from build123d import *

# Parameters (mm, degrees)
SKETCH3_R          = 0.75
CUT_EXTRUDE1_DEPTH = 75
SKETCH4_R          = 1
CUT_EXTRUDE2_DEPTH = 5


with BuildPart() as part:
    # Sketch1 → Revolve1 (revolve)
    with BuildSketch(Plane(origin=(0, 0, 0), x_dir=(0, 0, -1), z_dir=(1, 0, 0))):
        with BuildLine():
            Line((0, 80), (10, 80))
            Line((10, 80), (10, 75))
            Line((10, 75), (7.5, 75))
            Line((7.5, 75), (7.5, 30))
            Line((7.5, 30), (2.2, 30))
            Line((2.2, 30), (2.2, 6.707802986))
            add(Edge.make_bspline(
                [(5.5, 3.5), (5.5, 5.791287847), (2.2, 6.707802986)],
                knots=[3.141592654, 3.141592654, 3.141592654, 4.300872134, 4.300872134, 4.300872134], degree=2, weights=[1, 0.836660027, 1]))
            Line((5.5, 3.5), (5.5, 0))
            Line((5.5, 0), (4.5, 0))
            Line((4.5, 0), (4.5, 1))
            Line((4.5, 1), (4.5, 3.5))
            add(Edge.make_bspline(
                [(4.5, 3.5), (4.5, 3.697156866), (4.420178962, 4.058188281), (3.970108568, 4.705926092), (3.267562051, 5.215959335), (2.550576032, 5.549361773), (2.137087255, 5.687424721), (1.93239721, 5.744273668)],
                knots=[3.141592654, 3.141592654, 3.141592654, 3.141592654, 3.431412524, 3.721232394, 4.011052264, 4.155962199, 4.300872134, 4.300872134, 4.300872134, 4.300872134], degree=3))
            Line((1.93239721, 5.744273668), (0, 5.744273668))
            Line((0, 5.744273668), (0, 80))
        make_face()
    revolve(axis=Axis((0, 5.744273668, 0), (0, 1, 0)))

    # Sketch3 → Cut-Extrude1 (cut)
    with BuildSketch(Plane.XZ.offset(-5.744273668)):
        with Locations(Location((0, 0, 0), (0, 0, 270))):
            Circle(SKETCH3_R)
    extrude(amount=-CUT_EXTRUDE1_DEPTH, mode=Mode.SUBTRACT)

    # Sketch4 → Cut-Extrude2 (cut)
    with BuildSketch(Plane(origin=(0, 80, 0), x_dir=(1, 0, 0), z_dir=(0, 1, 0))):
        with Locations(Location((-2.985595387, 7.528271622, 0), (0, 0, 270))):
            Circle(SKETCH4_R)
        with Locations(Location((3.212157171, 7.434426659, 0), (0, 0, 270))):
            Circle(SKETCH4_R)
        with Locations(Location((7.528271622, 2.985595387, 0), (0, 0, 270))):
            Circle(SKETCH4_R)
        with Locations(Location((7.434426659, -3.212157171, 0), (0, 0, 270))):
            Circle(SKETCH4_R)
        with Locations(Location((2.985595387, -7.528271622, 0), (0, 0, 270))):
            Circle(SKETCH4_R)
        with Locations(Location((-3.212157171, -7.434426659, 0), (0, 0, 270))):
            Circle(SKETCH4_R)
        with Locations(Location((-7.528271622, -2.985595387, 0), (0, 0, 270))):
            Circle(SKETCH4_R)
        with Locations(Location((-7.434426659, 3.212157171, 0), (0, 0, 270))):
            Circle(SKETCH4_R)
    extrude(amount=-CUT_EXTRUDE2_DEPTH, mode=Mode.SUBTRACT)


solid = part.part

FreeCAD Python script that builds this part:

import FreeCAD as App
import Part
import Sketcher

V = App.Vector
Q = App.Units.Quantity

doc = App.newDocument("Part")
body = doc.addObject("PartDesign::Body", "Body")

# Sketch on YZ plane
sketch1 = body.newObject("Sketcher::SketchObject", "Sketch")
sketch1.AttachmentSupport = (doc.getObject("YZ_Plane"), [""])
sketch1.MapMode = "FlatFace"
sketch1.addGeometry(Part.LineSegment(V(80, -10, 0), V(80, 0, 0)), False)
sketch1.addGeometry(Part.LineSegment(V(80, 0, 0), V(5.744274, 0, 0)), False)
sketch1.addGeometry(Part.LineSegment(V(5.744274, 0, 0), V(5.744274, -1.932397, 0)), False)
sketch1.addGeometry(Part.BSplineCurve([V(3.5, -4.5, 0), V(3.697157, -4.5, 0), V(4.058188, -4.420179, 0), V(4.705926, -3.970109, 0), V(5.215959, -3.267562, 0), V(5.549362, -2.550576, 0), V(5.687425, -2.137087, 0), V(5.744274, -1.932397, 0)], [4, 1, 1, 1, 1, 4], [3.141592654, 3.431412524, 3.721232394, 4.011052264, 4.155962199, 4.300872134], False, 3, [1, 1, 1, 1, 1, 1, 1, 1], False), False)
sketch1.addGeometry(Part.LineSegment(V(3.5, -4.5, 0), V(0, -4.5, 0)), False)
sketch1.addGeometry(Part.LineSegment(V(0, -4.5, 0), V(0, -5.5, 0)), False)
sketch1.addGeometry(Part.LineSegment(V(0, -5.5, 0), V(3.5, -5.5, 0)), False)
sketch1.addGeometry(Part.BSplineCurve([V(3.5, -5.5, 0), V(5.791288, -5.5, 0), V(6.707803, -2.2, 0)], [3, 3], [3.141592654, 4.300872134], False, 2, [1, 0.836660027, 1], False), False)
sketch1.addGeometry(Part.LineSegment(V(6.707803, -2.2, 0), V(30, -2.2, 0)), False)
sketch1.addGeometry(Part.LineSegment(V(30, -2.2, 0), V(30, -7.5, 0)), False)
sketch1.addGeometry(Part.LineSegment(V(30, -7.5, 0), V(75, -7.5, 0)), False)
sketch1.addGeometry(Part.LineSegment(V(75, -7.5, 0), V(75, -10, 0)), False)
sketch1.addGeometry(Part.LineSegment(V(75, -10, 0), V(80, -10, 0)), False)
sketch1.addConstraint(Sketcher.Constraint("Block", 3))
sketch1.addConstraint(Sketcher.Constraint("Block", 7))
sketch1.addConstraint(Sketcher.Constraint("Coincident", 0, 2, 1, 1))
sketch1.addConstraint(Sketcher.Constraint("Coincident", 1, 2, 2, 1))
sketch1.addConstraint(Sketcher.Constraint("Coincident", 2, 2, 3, 2))
sketch1.addConstraint(Sketcher.Constraint("Coincident", 3, 1, 4, 1))
sketch1.addConstraint(Sketcher.Constraint("Coincident", 4, 2, 5, 1))
sketch1.addConstraint(Sketcher.Constraint("Coincident", 5, 2, 6, 1))
sketch1.addConstraint(Sketcher.Constraint("Coincident", 6, 2, 7, 1))
sketch1.addConstraint(Sketcher.Constraint("Coincident", 7, 2, 8, 1))
sketch1.addConstraint(Sketcher.Constraint("Coincident", 8, 2, 9, 1))
sketch1.addConstraint(Sketcher.Constraint("Coincident", 9, 2, 10, 1))
sketch1.addConstraint(Sketcher.Constraint("Coincident", 10, 2, 11, 1))
sketch1.addConstraint(Sketcher.Constraint("Coincident", 11, 2, 12, 1))
sketch1.addConstraint(Sketcher.Constraint("Coincident", 12, 2, 0, 1))
sketch1.addConstraint(Sketcher.Constraint("Vertical", 0))
sketch1.addConstraint(Sketcher.Constraint("Horizontal", 1))
sketch1.addConstraint(Sketcher.Constraint("Vertical", 2))
sketch1.addConstraint(Sketcher.Constraint("Horizontal", 4))
sketch1.addConstraint(Sketcher.Constraint("Vertical", 5))
sketch1.addConstraint(Sketcher.Constraint("Horizontal", 6))
sketch1.addConstraint(Sketcher.Constraint("Horizontal", 8))
sketch1.addConstraint(Sketcher.Constraint("Vertical", 9))
sketch1.addConstraint(Sketcher.Constraint("Horizontal", 10))
sketch1.addConstraint(Sketcher.Constraint("Vertical", 11))
sketch1.addConstraint(Sketcher.Constraint("Horizontal", 12))
sketch1.addConstraint(Sketcher.Constraint("PointOnObject", 0, 2, -1))
sketch1.addConstraint(Sketcher.Constraint("PointOnObject", 4, 2, -2))
sketch1.addConstraint(Sketcher.Constraint("DistanceX", 10, 1, 10, 2, Q("45 mm")))
sketch1.addConstraint(Sketcher.Constraint("DistanceX", 12, 1, 12, 2, Q("5 mm")))
sketch1.addConstraint(Sketcher.Constraint("DistanceY", 0, 1, 0, 2, Q("10 mm")))
sketch1.addConstraint(Sketcher.Constraint("DistanceY", 9, 2, 9, 1, Q("5.3 mm")))
sketch1.addConstraint(Sketcher.Constraint("DistanceX", -1, 1, 0, 2, Q("80 mm")))
revolution = body.newObject("PartDesign::Revolution", "Revolution")
revolution.Profile = sketch1
revolution.ReferenceAxis = (sketch1, ["H_Axis"])
revolution.Angle = 360

# Sketch on XZ plane
sketch2 = body.newObject("Sketcher::SketchObject", "Sketch001")
sketch2.AttachmentSupport = (doc.getObject("XZ_Plane"), [""])
sketch2.MapMode = "FlatFace"
sketch2.AttachmentOffset = App.Placement(V(0, 0, -5.744274), App.Rotation())
sketch2.addGeometry(Part.Circle(V(0, 0, 0), V(0, 0, 1), 0.75), False)
sketch2.addConstraint(Sketcher.Constraint("Coincident", 0, 3, -1, 1))
sketch2.addConstraint(Sketcher.Constraint("Diameter", 0, Q("1.5 mm")))
pocket1 = body.newObject("PartDesign::Pocket", "Pocket")
pocket1.Profile = sketch2
pocket1.Length = 75

# Sketch on XZ plane
sketch3 = body.newObject("Sketcher::SketchObject", "Sketch002")
sketch3.AttachmentSupport = (doc.getObject("XZ_Plane"), [""])
sketch3.MapMode = "FlatFace"
sketch3.AttachmentOffset = App.Placement(V(0, 0, -80), App.Rotation())
sketch3.addGeometry(Part.Circle(V(-2.985595, -7.528272, 0), V(0, 0, 1), 1), False)
sketch3.addGeometry(Part.Circle(V(3.212157, -7.434427, 0), V(0, 0, 1), 1), False)
sketch3.addGeometry(Part.Circle(V(7.528272, -2.985595, 0), V(0, 0, 1), 1), False)
sketch3.addGeometry(Part.Circle(V(7.434427, 3.212157, 0), V(0, 0, 1), 1), False)
sketch3.addGeometry(Part.Circle(V(2.985595, 7.528272, 0), V(0, 0, 1), 1), False)
sketch3.addGeometry(Part.Circle(V(-3.212157, 7.434427, 0), V(0, 0, 1), 1), False)
sketch3.addGeometry(Part.Circle(V(-7.528272, 2.985595, 0), V(0, 0, 1), 1), False)
sketch3.addGeometry(Part.Circle(V(-7.434427, -3.212157, 0), V(0, 0, 1), 1), False)
sketch3.addConstraint(Sketcher.Constraint("Equal", 0, 1))
sketch3.addConstraint(Sketcher.Constraint("Equal", 1, 2))
sketch3.addConstraint(Sketcher.Constraint("Equal", 2, 3))
sketch3.addConstraint(Sketcher.Constraint("Equal", 3, 4))
sketch3.addConstraint(Sketcher.Constraint("Equal", 4, 5))
sketch3.addConstraint(Sketcher.Constraint("Equal", 5, 6))
sketch3.addConstraint(Sketcher.Constraint("Equal", 6, 7))
sketch3.addConstraint(Sketcher.Constraint("Symmetric", 0, 3, 4, 3, -1, 1))
sketch3.addConstraint(Sketcher.Constraint("Symmetric", 1, 3, 5, 3, -1, 1))
sketch3.addConstraint(Sketcher.Constraint("Symmetric", 2, 3, 6, 3, -1, 1))
sketch3.addConstraint(Sketcher.Constraint("Symmetric", 3, 3, 7, 3, -1, 1))
sketch3.addConstraint(Sketcher.Constraint("Diameter", 0, Q("2 mm")))
sketch3.addConstraint(Sketcher.Constraint("DistanceY", 1, 3, 4, 3, Q("14.962698 mm")))
sketch3.addConstraint(Sketcher.Constraint("DistanceX", 6, 3, 3, 3, Q("14.962698 mm")))
sketch3.addConstraint(Sketcher.Constraint("DistanceY", 0, 3, -1, 1, Q("7.528272 mm")))
sketch3.addConstraint(Sketcher.Constraint("DistanceX", -1, 1, 2, 3, Q("7.528272 mm")))
sketch3.addConstraint(Sketcher.Constraint("DistanceY", 1, 3, 2, 3, Q("4.448831 mm")))
sketch3.addConstraint(Sketcher.Constraint("DistanceX", 1, 3, 3, 3, Q("4.222269 mm")))
sketch3.addConstraint(Sketcher.Constraint("DistanceY", 0, 3, 3, 3, Q("10.740429 mm")))
sketch3.addConstraint(Sketcher.Constraint("DistanceX", 4, 3, 3, 3, Q("4.448831 mm")))
pocket2 = body.newObject("PartDesign::Pocket", "Pocket001")
pocket2.Profile = sketch3
pocket2.Length = 5
pocket2.Reversed = True

doc.recompute()
